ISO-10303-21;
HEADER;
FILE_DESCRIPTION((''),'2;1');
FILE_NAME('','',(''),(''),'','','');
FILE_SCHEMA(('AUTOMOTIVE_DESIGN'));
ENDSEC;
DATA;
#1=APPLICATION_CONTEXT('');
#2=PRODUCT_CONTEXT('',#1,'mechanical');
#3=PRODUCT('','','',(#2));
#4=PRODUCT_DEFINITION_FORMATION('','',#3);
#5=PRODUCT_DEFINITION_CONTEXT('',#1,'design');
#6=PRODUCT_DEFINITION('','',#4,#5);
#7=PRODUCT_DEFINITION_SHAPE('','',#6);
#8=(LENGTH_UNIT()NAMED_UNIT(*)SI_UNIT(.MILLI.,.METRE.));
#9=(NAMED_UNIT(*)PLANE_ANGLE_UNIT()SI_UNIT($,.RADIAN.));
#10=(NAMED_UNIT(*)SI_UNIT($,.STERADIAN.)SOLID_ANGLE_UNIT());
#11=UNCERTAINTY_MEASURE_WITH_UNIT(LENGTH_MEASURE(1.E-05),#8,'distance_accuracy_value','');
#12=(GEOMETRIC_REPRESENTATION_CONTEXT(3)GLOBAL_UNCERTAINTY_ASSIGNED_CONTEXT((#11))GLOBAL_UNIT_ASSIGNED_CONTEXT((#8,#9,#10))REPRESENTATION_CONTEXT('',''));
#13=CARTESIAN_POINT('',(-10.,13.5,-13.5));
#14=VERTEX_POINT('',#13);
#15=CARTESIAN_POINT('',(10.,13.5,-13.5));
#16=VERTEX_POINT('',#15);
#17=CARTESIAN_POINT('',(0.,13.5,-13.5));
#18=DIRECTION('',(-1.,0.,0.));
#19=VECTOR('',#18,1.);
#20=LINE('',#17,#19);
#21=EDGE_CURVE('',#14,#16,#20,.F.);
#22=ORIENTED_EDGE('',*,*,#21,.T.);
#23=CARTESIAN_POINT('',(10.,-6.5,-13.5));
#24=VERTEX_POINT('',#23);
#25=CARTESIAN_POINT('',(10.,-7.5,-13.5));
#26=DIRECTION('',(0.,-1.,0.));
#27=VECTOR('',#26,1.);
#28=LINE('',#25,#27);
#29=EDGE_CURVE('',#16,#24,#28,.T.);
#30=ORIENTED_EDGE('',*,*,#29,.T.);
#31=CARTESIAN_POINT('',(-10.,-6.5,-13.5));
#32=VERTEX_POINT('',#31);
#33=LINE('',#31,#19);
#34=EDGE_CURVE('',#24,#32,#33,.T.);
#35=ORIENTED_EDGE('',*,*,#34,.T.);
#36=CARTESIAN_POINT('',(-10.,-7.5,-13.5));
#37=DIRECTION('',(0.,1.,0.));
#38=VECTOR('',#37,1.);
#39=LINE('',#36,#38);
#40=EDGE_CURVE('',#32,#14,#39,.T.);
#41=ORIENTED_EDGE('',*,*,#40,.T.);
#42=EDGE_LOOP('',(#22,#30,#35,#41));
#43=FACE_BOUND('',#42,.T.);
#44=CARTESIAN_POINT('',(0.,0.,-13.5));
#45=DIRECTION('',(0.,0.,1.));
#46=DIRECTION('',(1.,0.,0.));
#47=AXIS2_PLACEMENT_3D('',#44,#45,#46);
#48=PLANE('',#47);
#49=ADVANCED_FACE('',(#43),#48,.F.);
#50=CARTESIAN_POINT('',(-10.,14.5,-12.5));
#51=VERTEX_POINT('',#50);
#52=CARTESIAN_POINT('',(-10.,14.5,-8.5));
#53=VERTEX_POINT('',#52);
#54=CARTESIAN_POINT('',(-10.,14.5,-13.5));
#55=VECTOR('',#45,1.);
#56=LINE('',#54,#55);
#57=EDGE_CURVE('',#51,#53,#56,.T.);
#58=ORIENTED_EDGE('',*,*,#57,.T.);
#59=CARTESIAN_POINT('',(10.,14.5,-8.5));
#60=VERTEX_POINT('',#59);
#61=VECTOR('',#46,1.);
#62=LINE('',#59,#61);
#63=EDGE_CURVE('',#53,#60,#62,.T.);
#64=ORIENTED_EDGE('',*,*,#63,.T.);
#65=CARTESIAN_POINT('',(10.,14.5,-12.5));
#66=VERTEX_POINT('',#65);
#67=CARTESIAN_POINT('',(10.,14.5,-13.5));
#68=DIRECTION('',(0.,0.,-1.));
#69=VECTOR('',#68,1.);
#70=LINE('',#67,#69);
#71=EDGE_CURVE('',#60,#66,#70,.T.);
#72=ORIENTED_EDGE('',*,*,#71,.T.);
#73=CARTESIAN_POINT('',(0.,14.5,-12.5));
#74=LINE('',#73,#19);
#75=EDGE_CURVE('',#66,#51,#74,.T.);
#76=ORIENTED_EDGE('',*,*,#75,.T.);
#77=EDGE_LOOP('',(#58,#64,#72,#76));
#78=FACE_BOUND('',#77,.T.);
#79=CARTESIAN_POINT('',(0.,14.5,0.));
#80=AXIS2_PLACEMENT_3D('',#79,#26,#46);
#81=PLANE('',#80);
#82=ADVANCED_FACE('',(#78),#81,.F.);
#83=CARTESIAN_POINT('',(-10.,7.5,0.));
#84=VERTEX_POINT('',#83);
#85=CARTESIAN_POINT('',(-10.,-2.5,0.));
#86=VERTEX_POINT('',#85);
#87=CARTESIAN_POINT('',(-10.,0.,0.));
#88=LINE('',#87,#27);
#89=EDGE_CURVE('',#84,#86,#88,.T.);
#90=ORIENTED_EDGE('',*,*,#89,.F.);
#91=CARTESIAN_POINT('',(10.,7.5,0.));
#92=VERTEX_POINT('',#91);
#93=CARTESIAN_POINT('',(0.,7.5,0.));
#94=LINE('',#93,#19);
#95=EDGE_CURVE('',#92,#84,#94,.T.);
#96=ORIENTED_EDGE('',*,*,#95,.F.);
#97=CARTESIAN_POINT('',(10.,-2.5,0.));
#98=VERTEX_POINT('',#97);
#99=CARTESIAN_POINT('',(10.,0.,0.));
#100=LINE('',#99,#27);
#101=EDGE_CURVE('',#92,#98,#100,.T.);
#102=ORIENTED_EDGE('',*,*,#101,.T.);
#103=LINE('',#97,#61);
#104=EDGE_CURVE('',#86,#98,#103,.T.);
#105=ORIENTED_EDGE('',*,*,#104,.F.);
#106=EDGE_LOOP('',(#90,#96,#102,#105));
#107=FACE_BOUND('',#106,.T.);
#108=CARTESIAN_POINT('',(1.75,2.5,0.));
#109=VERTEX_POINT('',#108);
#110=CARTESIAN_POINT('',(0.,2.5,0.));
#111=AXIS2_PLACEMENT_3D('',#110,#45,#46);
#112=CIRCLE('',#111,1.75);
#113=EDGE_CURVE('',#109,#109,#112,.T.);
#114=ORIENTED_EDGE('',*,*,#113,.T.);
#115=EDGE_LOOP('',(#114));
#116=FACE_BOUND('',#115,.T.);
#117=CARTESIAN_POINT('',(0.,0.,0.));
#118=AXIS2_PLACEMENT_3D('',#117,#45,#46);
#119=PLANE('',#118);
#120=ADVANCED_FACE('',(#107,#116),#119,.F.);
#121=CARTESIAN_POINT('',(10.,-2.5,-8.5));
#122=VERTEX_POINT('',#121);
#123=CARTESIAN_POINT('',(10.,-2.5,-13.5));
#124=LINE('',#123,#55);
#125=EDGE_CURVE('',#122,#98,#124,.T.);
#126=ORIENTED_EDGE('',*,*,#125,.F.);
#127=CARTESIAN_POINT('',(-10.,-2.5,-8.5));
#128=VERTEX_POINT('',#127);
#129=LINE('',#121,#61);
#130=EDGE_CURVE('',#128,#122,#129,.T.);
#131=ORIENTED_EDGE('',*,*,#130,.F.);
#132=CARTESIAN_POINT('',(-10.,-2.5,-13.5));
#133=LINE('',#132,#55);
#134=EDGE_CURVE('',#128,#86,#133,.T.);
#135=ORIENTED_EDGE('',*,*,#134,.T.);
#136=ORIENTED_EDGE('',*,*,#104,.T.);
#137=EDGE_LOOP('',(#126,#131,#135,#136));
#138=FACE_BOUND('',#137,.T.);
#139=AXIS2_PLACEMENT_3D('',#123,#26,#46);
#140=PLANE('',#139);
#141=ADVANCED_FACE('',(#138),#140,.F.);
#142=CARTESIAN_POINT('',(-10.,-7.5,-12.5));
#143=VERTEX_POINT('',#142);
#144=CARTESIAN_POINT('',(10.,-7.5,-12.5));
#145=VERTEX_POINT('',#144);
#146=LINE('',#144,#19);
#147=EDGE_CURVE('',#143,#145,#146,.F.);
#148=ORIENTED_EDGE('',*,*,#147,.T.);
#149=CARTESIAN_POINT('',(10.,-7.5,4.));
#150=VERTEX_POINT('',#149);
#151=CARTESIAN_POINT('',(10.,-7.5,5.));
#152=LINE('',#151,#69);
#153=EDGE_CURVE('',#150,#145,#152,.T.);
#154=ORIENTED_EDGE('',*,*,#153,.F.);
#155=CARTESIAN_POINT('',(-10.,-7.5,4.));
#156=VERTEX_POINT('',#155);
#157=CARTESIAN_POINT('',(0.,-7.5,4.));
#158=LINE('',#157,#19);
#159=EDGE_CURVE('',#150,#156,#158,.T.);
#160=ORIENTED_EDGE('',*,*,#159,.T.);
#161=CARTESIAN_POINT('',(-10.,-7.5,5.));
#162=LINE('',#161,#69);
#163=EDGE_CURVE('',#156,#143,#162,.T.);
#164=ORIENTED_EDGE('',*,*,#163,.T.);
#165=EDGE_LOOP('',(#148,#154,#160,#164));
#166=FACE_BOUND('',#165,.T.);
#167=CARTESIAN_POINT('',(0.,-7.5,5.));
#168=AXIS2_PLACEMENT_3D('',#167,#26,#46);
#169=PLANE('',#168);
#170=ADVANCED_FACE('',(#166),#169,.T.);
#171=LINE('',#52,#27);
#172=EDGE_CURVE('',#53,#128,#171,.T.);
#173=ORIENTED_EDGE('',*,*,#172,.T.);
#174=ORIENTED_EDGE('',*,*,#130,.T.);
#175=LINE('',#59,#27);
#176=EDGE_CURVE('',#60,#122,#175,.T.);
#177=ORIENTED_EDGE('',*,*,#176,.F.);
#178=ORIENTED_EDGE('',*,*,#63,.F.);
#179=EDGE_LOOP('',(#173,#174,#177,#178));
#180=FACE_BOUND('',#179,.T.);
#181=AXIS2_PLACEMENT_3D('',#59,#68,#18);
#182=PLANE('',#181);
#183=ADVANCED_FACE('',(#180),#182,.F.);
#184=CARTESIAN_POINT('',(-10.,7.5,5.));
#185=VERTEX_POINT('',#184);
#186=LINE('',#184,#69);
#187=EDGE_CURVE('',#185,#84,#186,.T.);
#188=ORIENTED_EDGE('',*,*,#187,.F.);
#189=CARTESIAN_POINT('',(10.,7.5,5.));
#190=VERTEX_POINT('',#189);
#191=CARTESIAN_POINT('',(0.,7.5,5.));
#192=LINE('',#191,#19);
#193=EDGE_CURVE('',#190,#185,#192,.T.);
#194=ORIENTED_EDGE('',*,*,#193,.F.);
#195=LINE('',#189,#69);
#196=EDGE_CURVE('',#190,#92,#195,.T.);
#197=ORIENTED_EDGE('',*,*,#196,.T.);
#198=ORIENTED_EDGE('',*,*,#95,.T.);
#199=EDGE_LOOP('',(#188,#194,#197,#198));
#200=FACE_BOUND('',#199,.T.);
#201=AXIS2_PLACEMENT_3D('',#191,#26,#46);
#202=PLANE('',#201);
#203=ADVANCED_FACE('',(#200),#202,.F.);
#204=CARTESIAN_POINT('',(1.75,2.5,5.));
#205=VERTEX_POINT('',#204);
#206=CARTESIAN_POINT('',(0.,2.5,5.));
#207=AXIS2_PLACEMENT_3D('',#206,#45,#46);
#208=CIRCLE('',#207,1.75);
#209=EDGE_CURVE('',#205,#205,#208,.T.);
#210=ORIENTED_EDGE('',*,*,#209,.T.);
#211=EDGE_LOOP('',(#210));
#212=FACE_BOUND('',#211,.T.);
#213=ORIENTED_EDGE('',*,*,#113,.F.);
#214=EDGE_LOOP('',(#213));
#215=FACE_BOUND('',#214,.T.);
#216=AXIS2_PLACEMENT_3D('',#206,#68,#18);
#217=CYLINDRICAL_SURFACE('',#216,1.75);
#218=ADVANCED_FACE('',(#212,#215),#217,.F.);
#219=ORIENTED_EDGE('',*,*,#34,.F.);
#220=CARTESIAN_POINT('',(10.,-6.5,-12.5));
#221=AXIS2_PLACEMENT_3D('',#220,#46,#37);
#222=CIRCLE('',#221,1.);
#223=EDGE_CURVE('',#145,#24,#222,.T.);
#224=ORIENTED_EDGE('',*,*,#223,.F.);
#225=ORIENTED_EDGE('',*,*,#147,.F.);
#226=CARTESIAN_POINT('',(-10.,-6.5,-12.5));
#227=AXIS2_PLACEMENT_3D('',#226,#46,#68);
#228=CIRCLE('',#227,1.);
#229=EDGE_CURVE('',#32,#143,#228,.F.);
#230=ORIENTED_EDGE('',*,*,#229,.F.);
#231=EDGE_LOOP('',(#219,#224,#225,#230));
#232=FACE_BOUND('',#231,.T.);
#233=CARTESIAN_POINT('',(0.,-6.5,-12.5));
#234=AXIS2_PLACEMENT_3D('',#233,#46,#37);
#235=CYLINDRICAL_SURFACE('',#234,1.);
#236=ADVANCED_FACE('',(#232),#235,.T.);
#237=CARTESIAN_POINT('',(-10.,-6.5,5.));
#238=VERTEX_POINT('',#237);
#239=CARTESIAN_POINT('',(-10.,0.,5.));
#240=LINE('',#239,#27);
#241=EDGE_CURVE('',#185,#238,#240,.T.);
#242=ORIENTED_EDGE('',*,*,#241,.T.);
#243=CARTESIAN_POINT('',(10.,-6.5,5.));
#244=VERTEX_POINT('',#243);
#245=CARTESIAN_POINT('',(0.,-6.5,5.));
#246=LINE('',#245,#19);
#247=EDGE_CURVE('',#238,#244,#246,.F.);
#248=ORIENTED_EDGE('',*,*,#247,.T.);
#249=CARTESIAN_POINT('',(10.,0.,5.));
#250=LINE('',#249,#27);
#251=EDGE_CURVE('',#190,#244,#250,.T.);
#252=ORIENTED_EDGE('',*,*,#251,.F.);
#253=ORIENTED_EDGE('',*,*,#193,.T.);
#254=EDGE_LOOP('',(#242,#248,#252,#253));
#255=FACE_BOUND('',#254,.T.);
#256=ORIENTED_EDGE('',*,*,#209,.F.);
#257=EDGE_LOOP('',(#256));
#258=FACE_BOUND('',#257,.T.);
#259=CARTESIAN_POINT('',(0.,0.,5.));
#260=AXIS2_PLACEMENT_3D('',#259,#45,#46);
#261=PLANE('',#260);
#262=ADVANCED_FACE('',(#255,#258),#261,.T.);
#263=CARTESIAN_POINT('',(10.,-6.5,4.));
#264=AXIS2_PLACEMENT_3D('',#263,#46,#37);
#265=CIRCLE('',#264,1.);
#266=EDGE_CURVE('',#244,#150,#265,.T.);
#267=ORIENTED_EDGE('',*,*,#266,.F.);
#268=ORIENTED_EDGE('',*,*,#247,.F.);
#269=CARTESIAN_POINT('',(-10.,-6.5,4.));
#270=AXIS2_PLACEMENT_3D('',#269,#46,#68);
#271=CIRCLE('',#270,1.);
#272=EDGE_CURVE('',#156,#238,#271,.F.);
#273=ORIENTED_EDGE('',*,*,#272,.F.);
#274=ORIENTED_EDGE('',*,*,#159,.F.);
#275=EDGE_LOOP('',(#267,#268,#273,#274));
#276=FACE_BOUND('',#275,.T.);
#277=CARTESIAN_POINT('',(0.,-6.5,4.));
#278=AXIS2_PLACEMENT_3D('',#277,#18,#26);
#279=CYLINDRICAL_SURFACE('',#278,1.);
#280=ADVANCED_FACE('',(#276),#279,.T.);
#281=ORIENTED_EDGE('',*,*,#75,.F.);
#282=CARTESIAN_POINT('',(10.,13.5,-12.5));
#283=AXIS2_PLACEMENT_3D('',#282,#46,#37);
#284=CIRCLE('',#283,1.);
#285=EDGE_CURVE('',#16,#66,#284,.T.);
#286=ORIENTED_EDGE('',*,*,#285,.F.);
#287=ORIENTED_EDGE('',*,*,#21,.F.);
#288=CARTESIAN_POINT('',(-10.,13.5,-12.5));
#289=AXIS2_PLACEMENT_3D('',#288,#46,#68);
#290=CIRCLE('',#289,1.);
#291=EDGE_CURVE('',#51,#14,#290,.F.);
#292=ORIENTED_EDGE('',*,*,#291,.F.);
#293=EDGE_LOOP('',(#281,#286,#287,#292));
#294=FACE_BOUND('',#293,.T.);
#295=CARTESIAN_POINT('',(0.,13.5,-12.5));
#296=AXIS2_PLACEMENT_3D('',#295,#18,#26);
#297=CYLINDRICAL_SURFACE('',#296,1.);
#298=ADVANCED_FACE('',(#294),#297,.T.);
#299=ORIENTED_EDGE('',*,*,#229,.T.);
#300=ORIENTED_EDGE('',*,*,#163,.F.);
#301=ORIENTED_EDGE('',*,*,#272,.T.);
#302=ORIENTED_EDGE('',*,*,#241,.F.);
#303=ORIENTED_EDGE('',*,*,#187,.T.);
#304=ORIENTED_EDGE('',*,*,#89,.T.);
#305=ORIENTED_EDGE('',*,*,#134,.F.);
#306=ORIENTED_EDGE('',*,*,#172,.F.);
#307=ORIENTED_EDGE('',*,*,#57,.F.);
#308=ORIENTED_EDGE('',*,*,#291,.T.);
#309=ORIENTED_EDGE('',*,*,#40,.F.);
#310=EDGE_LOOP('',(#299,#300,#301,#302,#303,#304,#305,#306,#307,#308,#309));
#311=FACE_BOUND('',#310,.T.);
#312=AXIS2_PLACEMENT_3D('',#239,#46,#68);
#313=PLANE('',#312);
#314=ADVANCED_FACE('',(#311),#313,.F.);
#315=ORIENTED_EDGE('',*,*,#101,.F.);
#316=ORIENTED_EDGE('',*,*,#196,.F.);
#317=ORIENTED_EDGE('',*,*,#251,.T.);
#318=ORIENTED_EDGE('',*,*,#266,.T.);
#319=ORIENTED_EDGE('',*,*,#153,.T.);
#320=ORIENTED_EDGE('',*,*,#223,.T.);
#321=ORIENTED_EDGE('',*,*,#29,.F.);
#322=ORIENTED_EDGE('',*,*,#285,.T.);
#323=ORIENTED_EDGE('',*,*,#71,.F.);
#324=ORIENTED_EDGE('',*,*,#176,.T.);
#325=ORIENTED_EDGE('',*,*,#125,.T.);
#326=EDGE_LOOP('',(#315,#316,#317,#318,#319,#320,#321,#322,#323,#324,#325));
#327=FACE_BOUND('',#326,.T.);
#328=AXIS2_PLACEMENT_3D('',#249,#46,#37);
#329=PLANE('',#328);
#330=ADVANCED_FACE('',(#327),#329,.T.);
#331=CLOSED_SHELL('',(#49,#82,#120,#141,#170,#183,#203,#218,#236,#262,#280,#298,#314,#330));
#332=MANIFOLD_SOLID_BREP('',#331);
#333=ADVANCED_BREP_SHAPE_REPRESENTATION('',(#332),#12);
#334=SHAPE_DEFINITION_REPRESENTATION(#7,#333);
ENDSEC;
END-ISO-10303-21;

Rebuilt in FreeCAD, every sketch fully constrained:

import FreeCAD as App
import Part
import Sketcher
Q = App.Units.Quantity


def edges_at(feature, points):
    """Names of the edges that pass closest to the given points."""
    edges = feature.Shape.Edges
    near = lambda p: min(range(len(edges)), key=lambda i: edges[i].distToShape(Part.Vertex(*p))[0])
    return sorted({f"Edge{near(p) + 1}" for p in points})


def add_polygon(sketch, points):
    """Adds a closed chain of lines whose ends are joined by coincident constraints."""
    first, n = sketch.GeometryCount, len(points)
    for a, b in zip(points, points[1:] + points[:1]):
        sketch.addGeometry(Part.LineSegment(App.Vector(*a, 0), App.Vector(*b, 0)), False)
    for i in range(n):
        sketch.addConstraint(Sketcher.Constraint("Coincident", first + i, 2, first + (i + 1) % n, 1))

doc = App.newDocument("Part")
body = doc.addObject("PartDesign::Body", "Body")

# Sketch on XY plane
sketch1 = body.newObject("Sketcher::SketchObject", "Sketch")
sketch1.AttachmentSupport = (doc.getObject("XY_Plane"), [""])
sketch1.MapMode = "FlatFace"
add_polygon(sketch1, [(-10, 7.5), (-10, -7.5), (10, -7.5), (10, 7.5)])  # lines 0-3
sketch1.addGeometry(Part.Circle(App.Vector(0, 2.5, 0), App.Vector(0, 0, 1), 1.8), False)  # 4
sketch1.addConstraint(Sketcher.Constraint("Vertical", 0))
sketch1.addConstraint(Sketcher.Constraint("Horizontal", 1))
sketch1.addConstraint(Sketcher.Constraint("Vertical", 2))
sketch1.addConstraint(Sketcher.Constraint("Horizontal", 3))
sketch1.addConstraint(Sketcher.Constraint("Symmetric", 0, 2, 2, 2, -1, 1))
sketch1.addConstraint(Sketcher.Constraint("PointOnObject", 4, 3, -2))
sketch1.addConstraint(Sketcher.Constraint("Diameter", 4, Q("3.5 mm")))
sketch1.addConstraint(Sketcher.Constraint("DistanceX", 1, 1, 1, 2, Q("20 mm")))
sketch1.addConstraint(Sketcher.Constraint("DistanceY", 0, 2, 0, 1, Q("15 mm")))
sketch1.addConstraint(Sketcher.Constraint("DistanceY", 0, 2, 4, 3, Q("10 mm")))
pad1 = body.newObject("PartDesign::Pad", "Pad")
pad1.Profile = sketch1
pad1.Length = 5

# Sketch on XY plane
sketch2 = body.newObject("Sketcher::SketchObject", "Sketch001")
sketch2.AttachmentSupport = (doc.getObject("XY_Plane"), [""])
sketch2.MapMode = "FlatFace"
add_polygon(sketch2, [(10, -2), (10, -8), (-10, -8), (-10, -2)])  # lines 0-3
sketch2.addConstraint(Sketcher.Constraint("Vertical", 0))
sketch2.addConstraint(Sketcher.Constraint("Horizontal", 1))
sketch2.addConstraint(Sketcher.Constraint("Vertical", 2))
sketch2.addConstraint(Sketcher.Constraint("Horizontal", 3))
sketch2.addConstraint(Sketcher.Constraint("DistanceX", 1, 2, 1, 1, Q("20 mm")))
sketch2.addConstraint(Sketcher.Constraint("DistanceY", 0, 2, 0, 1, Q("5 mm")))
sketch2.addConstraint(Sketcher.Constraint("DistanceX", -1, 1, 0, 2, Q("10 mm")))
sketch2.addConstraint(Sketcher.Constraint("DistanceY", 0, 2, -1, 1, Q("7.5 mm")))
pad2 = body.newObject("PartDesign::Pad", "Pad001")
pad2.Profile = sketch2
pad2.Length = 13.5
pad2.Reversed = True

# Sketch on XZ plane
sketch3 = body.newObject("Sketcher::SketchObject", "Sketch002")
sketch3.AttachmentSupport = (doc.getObject("XZ_Plane"), [""])
sketch3.MapMode = "FlatFace"
sketch3.AttachmentOffset = App.Placement(App.Vector(0, 0, 2.5), App.Rotation())
add_polygon(sketch3, [(-10, -14), (-10, -8), (10, -8), (10, -14)])  # lines 0-3
sketch3.addConstraint(Sketcher.Constraint("Vertical", 0))
sketch3.addConstraint(Sketcher.Constraint("Horizontal", 1))
sketch3.addConstraint(Sketcher.Constraint("Vertical", 2))
sketch3.addConstraint(Sketcher.Constraint("Horizontal", 3))
sketch3.addConstraint(Sketcher.Constraint("DistanceX", 1, 1, 1, 2, Q("20 mm")))
sketch3.addConstraint(Sketcher.Constraint("DistanceY", 0, 1, 0, 2, Q("5 mm")))
sketch3.addConstraint(Sketcher.Constraint("DistanceX", 0, 2, -1, 1, Q("10 mm")))
sketch3.addConstraint(Sketcher.Constraint("DistanceY", 0, 2, -1, 1, Q("8.5 mm")))
pad3 = body.newObject("PartDesign::Pad", "Pad002")
pad3.Profile = sketch3
pad3.Length = 17
pad3.Reversed = True
doc.recompute()

fillet = body.newObject("PartDesign::Fillet", "Fillet")
fillet.Base = (pad3, edges_at(pad3, [(0, -7.5, 5), (0, -7.5, -13.5), (0, 14.5, -13.5)]))
fillet.Radius = 1

doc.recompute()
